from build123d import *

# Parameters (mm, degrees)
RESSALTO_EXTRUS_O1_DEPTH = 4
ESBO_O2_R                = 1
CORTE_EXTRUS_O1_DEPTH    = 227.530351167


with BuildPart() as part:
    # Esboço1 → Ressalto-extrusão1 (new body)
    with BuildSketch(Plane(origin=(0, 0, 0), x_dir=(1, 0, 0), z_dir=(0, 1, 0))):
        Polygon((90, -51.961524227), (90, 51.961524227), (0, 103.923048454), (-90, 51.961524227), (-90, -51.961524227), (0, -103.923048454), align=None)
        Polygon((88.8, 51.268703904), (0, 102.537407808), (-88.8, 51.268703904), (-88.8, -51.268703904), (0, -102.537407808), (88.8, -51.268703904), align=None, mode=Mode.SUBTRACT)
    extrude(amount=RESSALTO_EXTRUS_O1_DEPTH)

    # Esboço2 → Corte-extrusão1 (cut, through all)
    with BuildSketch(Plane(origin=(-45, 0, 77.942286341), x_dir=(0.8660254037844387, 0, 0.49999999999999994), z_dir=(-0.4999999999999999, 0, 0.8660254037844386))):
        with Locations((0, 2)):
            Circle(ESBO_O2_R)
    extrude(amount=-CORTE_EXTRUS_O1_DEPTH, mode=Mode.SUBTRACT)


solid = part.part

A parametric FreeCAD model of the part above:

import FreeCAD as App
import Part
import Sketcher
Q = App.Units.Quantity


def add_polygon(sketch, points):
    """Adds a closed chain of lines whose ends are joined by coincident constraints."""
    first, n = sketch.GeometryCount, len(points)
    for a, b in zip(points, points[1:] + points[:1]):
        sketch.addGeometry(Part.LineSegment(App.Vector(*a, 0), App.Vector(*b, 0)), False)
    for i in range(n):
        sketch.addConstraint(Sketcher.Constraint("Coincident", first + i, 2, first + (i + 1) % n, 1))

doc = App.newDocument("Part")
body = doc.addObject("PartDesign::Body", "Body")

# Sketch on XZ plane
sketch1 = doc.addObject("Sketcher::SketchObject", "Sketch")
body.addObject(sketch1)
sketch1.AttachmentSupport = (doc.XZ_Plane, [""])
sketch1.MapMode = "FlatFace"
add_polygon(sketch1, [(90, 52), (90, -52), (0, -104), (-90, -52), (-90, 52), (0, 104)])  # lines 0-5
add_polygon(sketch1, [(0, -103), (89, -51), (89, 51), (0, 103), (-89, 51), (-89, -51)])  # lines 6-11
sketch1.addConstraint([
    Sketcher.Constraint("Vertical", 0),
    Sketcher.Constraint("Vertical", 3),
    Sketcher.Constraint("Vertical", 7),
    Sketcher.Constraint("Vertical", 10),
    Sketcher.Constraint("Symmetric", 0, 2, 3, 2, -1, 1),
    Sketcher.Constraint("Symmetric", 1, 2, 4, 2, -1, 1),
    Sketcher.Constraint("Symmetric", 6, 2, 9, 2, -1, 1),
    Sketcher.Constraint("Symmetric", 8, 2, 11, 2, -1, 1),
    Sketcher.Constraint("PointOnObject", 1, 2, -2),
    Sketcher.Constraint("PointOnObject", 8, 2, -2),
    Sketcher.Constraint("Parallel", 2, 5),
    Sketcher.Constraint("Parallel", 4, 6),
    Sketcher.Constraint("Parallel", 5, 8),
    Sketcher.Constraint("Parallel", 8, 11),
    Sketcher.Constraint("Horizontal", 0, 2, 2, 2),
    Sketcher.Constraint("Angle", 1, Q("-150 deg")),
    Sketcher.Constraint("DistanceX", -1, 1, 0, 2, 90.0),
    Sketcher.Constraint("DistanceX", -1, 1, 6, 2, 88.8),
    Sketcher.Constraint("DistanceY", 0, 2, 0, 1, 103.923048),
    Sketcher.Constraint("DistanceY", 7, 1, 7, 2, 102.537408),
])
pad1 = doc.addObject("PartDesign::Pad", "Pad")
body.addObject(pad1)
pad1.Profile = sketch1
pad1.Length = 4
pad1.Reversed = True

# Sketch on an angled plane
sketch2 = doc.addObject("Sketcher::SketchObject", "Sketch001")
body.addObject(sketch2)
sketch2.Placement = App.Placement(App.Vector(-45, 0, 77.942286), App.Rotation(App.Vector(0.866025404, 0, 0.5), App.Vector(0, 1, 0), App.Vector(-0.5, 0, 0.866025404), "ZXY"))
sketch2.addGeometry(Part.Circle(App.Vector(0, 2, 0), App.Vector(0, 0, 1), 1), False)
sketch2.addConstraint([
    Sketcher.Constraint("PointOnObject", 0, 3, -2),
    Sketcher.Constraint("Diameter", 0, 2.0),
    Sketcher.Constraint("DistanceY", -1, 1, 0, 3, 2.0),
])
pocket1 = doc.addObject("PartDesign::Pocket", "Pocket")
body.addObject(pocket1)
pocket1.Profile = sketch2
pocket1.Type = "ThroughAll"

doc.recompute()
